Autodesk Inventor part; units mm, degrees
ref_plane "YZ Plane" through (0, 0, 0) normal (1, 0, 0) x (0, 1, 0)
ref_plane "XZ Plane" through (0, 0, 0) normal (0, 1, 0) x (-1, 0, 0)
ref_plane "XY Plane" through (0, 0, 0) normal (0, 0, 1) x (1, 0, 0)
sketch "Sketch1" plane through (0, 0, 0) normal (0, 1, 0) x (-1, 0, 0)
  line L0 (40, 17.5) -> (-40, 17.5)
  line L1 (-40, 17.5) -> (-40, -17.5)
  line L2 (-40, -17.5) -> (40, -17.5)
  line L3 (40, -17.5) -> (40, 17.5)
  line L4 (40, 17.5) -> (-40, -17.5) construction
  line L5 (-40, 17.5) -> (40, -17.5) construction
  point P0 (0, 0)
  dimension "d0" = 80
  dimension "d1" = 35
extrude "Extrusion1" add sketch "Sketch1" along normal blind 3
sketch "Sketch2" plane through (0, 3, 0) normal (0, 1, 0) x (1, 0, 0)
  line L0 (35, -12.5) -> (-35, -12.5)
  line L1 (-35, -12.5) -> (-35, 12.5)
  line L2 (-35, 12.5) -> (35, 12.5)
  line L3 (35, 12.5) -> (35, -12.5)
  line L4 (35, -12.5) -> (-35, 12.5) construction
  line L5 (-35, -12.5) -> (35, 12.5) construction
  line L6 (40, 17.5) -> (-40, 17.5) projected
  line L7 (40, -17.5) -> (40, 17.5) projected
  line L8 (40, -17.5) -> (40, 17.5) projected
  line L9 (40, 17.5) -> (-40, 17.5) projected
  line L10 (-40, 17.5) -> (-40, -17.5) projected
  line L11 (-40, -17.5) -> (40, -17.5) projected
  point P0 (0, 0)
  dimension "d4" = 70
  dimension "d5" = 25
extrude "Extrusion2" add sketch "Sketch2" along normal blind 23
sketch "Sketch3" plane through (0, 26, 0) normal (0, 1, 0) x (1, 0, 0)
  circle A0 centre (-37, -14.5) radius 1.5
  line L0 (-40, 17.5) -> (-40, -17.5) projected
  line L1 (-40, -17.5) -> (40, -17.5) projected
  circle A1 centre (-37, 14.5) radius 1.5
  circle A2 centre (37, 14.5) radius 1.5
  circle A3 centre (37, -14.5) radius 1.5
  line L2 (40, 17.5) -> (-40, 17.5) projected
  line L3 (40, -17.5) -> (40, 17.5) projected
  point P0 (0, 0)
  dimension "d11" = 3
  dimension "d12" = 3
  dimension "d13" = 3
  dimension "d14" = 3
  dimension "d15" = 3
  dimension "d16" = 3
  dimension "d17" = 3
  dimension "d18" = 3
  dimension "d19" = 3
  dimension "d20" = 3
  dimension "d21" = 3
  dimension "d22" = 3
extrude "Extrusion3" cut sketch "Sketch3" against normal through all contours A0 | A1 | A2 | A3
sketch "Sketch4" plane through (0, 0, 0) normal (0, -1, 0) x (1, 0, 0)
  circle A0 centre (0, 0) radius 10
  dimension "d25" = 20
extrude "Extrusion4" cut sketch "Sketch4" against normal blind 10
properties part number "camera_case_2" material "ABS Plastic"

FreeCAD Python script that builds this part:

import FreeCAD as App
import Part
import Sketcher

V = App.Vector


def add_polygon(sketch, points):
    """Adds a closed chain of lines whose ends are joined by coincident constraints."""
    first, n = sketch.GeometryCount, len(points)
    for a, b in zip(points, points[1:] + points[:1]):
        sketch.addGeometry(Part.LineSegment(App.Vector(*a, 0), App.Vector(*b, 0)), False)
    for i in range(n):
        sketch.addConstraint(Sketcher.Constraint("Coincident", first + i, 2, first + (i + 1) % n, 1))

doc = App.newDocument("Part")
body = doc.addObject("PartDesign::Body", "Body")

# Sketch on XZ plane
sketch1 = body.newObject("Sketcher::SketchObject", "Sketch")
sketch1.AttachmentSupport = (doc.getObject("XZ_Plane"), [""])
sketch1.MapMode = "FlatFace"
add_polygon(sketch1, [(-40, -18), (-40, 18), (40, 18), (40, -18)])  # lines 0-3
sketch1.addConstraint(Sketcher.Constraint("Vertical", 0))
sketch1.addConstraint(Sketcher.Constraint("Horizontal", 1))
sketch1.addConstraint(Sketcher.Constraint("Vertical", 2))
sketch1.addConstraint(Sketcher.Constraint("Horizontal", 3))
sketch1.addConstraint(Sketcher.Constraint("Symmetric", 0, 2, 2, 2, -1, 1))
sketch1.addConstraint(Sketcher.Constraint("DistanceX", 1, 1, 1, 2, 80.0))
sketch1.addConstraint(Sketcher.Constraint("DistanceY", 0, 1, 0, 2, 35.0))
pad1 = body.newObject("PartDesign::Pad", "Pad")
pad1.Profile = sketch1
pad1.Length = 3
pad1.Reversed = True

# Sketch on XZ plane
sketch2 = body.newObject("Sketcher::SketchObject", "Sketch001")
sketch2.AttachmentSupport = (doc.getObject("XZ_Plane"), [""])
sketch2.MapMode = "FlatFace"
sketch2.AttachmentOffset = App.Placement(V(0, 0, -3), App.Rotation())
add_polygon(sketch2, [(40, 18), (40, -18), (-40, -18), (-40, 18)])  # lines 0-3
add_polygon(sketch2, [(35, -12), (35, 12), (-35, 12), (-35, -12)])  # lines 4-7
sketch2.addConstraint(Sketcher.Constraint("Vertical", 0))
sketch2.addConstraint(Sketcher.Constraint("Horizontal", 1))
sketch2.addConstraint(Sketcher.Constraint("Vertical", 2))
sketch2.addConstraint(Sketcher.Constraint("Horizontal", 3))
sketch2.addConstraint(Sketcher.Constraint("Vertical", 4))
sketch2.addConstraint(Sketcher.Constraint("Horizontal", 5))
sketch2.addConstraint(Sketcher.Constraint("Vertical", 6))
sketch2.addConstraint(Sketcher.Constraint("Horizontal", 7))
sketch2.addConstraint(Sketcher.Constraint("Symmetric", 0, 2, 2, 2, -1, 1))
sketch2.addConstraint(Sketcher.Constraint("Symmetric", 4, 2, 6, 2, -1, 1))
sketch2.addConstraint(Sketcher.Constraint("DistanceX", 5, 2, 5, 1, 70.0))
sketch2.addConstraint(Sketcher.Constraint("DistanceY", 4, 1, 4, 2, 25.0))
sketch2.addConstraint(Sketcher.Constraint("DistanceX", 1, 2, 1, 1, 80.0))
sketch2.addConstraint(Sketcher.Constraint("DistanceY", 0, 2, 0, 1, 35.0))
pad2 = body.newObject("PartDesign::Pad", "Pad001")
pad2.Profile = sketch2
pad2.Length = 23
pad2.Reversed = True

# Sketch on XZ plane
sketch3 = body.newObject("Sketcher::SketchObject", "Sketch002")
sketch3.AttachmentSupport = (doc.getObject("XZ_Plane"), [""])
sketch3.MapMode = "FlatFace"
sketch3.AttachmentOffset = App.Placement(V(0, 0, -26), App.Rotation())
sketch3.addGeometry(Part.Circle(V(-37, 14.5, 0), V(0, 0, 1), 1.5), False)
sketch3.addGeometry(Part.Circle(V(-37, -14.5, 0), V(0, 0, 1), 1.5), False)
sketch3.addGeometry(Part.Circle(V(37, -14.5, 0), V(0, 0, 1), 1.5), False)
sketch3.addGeometry(Part.Circle(V(37, 14.5, 0), V(0, 0, 1), 1.5), False)
sketch3.addConstraint(Sketcher.Constraint("Equal", 0, 1))
sketch3.addConstraint(Sketcher.Constraint("Equal", 1, 2))
sketch3.addConstraint(Sketcher.Constraint("Equal", 2, 3))
sketch3.addConstraint(Sketcher.Constraint("Symmetric", 0, 3, 2, 3, -1, 1))
sketch3.addConstraint(Sketcher.Constraint("Symmetric", 1, 3, 3, 3, -1, 1))
sketch3.addConstraint(Sketcher.Constraint("Symmetric", 1, 3, 2, 3, -2))
sketch3.addConstraint(Sketcher.Constraint("Diameter", 0, 3.0))
sketch3.addConstraint(Sketcher.Constraint("DistanceX", 0, 3, -1, 1, 37.0))
sketch3.addConstraint(Sketcher.Constraint("DistanceY", 1, 3, 0, 3, 29.0))
pocket1 = body.newObject("PartDesign::Pocket", "Pocket")
pocket1.Profile = sketch3
pocket1.Type = "ThroughAll"
pocket1.Reversed = True

# Sketch on XZ plane
sketch4 = body.newObject("Sketcher::SketchObject", "Sketch003")
sketch4.AttachmentSupport = (doc.getObject("XZ_Plane"), [""])
sketch4.MapMode = "FlatFace"
sketch4.addGeometry(Part.Circle(V(0, 0, 0), V(0, 0, 1), 10), False)
sketch4.addConstraint(Sketcher.Constraint("Coincident", 0, 3, -1, 1))
sketch4.addConstraint(Sketcher.Constraint("Diameter", 0, 20.0))
pocket2 = body.newObject("PartDesign::Pocket", "Pocket001")
pocket2.Profile = sketch4
pocket2.Length = 10

doc.recompute()
